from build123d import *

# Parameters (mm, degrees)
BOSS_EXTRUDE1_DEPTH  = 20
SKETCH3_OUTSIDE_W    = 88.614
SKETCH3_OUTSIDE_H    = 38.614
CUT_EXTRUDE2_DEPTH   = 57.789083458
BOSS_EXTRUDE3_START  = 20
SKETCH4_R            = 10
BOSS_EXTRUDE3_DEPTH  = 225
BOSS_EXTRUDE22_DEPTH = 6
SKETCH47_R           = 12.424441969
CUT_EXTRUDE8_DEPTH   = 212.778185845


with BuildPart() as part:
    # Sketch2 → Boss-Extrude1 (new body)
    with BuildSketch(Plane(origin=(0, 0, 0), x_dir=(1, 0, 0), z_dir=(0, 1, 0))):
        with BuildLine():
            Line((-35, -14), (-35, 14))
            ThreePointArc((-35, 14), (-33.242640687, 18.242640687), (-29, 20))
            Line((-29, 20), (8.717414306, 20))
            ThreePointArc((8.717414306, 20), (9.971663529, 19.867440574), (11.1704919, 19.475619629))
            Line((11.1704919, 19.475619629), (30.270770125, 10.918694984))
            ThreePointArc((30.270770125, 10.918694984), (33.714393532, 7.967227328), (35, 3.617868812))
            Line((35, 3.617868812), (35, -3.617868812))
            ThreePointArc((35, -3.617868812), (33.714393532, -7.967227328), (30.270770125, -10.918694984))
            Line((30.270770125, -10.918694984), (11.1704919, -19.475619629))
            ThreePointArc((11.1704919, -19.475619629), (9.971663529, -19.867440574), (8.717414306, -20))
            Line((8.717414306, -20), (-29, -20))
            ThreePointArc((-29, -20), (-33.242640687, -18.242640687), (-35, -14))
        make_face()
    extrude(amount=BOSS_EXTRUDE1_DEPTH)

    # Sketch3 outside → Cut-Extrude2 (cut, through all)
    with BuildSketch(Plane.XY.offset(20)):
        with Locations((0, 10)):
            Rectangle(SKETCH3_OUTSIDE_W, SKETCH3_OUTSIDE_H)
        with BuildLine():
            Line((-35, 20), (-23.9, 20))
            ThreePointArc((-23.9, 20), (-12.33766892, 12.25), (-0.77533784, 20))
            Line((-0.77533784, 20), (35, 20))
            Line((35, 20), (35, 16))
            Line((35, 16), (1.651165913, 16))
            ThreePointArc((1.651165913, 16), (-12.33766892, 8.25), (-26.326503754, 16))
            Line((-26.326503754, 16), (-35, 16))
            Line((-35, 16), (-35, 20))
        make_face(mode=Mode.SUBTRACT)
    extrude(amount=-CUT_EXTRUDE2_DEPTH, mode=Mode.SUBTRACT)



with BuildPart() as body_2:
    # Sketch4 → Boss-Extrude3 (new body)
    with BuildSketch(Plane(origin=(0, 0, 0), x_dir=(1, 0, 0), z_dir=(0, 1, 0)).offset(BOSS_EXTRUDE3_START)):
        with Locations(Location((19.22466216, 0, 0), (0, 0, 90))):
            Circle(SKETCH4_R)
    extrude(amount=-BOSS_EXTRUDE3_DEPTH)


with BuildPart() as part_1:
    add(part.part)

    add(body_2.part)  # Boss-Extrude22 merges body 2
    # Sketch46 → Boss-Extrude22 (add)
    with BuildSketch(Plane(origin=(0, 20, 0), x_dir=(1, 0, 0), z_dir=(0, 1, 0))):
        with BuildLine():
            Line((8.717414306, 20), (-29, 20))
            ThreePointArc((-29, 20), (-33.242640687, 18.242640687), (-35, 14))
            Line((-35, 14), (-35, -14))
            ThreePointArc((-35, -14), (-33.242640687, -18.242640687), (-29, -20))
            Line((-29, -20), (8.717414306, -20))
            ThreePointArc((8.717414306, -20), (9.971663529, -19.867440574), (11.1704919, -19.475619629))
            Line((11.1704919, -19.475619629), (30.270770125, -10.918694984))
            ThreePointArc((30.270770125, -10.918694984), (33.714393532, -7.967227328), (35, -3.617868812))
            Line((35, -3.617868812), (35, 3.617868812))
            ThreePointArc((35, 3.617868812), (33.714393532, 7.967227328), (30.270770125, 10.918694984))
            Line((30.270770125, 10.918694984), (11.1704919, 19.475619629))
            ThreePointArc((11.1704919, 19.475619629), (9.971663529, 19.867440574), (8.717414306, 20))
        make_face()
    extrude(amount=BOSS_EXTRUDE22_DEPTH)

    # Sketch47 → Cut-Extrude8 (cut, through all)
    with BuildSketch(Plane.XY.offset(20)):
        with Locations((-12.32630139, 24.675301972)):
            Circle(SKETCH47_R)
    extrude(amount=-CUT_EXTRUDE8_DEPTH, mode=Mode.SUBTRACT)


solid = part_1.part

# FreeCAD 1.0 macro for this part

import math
import FreeCAD as App
import Part
import Sketcher

V = App.Vector


def add_polygon(sketch, points):
    """Adds a closed chain of lines whose ends are joined by coincident constraints."""
    first, n = sketch.GeometryCount, len(points)
    for a, b in zip(points, points[1:] + points[:1]):
        sketch.addGeometry(Part.LineSegment(App.Vector(*a, 0), App.Vector(*b, 0)), False)
    for i in range(n):
        sketch.addConstraint(Sketcher.Constraint("Coincident", first + i, 2, first + (i + 1) % n, 1))

doc = App.newDocument("Part")
body = doc.addObject("PartDesign::Body", "Body")

# Sketch on XZ plane
sketch1 = body.newObject("Sketcher::SketchObject", "Sketch")
sketch1.AttachmentSupport = (doc.getObject("XZ_Plane"), [""])
sketch1.MapMode = "FlatFace"
sketch1.addGeometry([
    Part.LineSegment(V(-35, -14, 0), V(-35, 14, 0)),  # 0
    Part.ArcOfCircle(Part.Circle(V(-29, 14, 0), V(0, 0, 1), 6), math.radians(90), math.radians(180)),  # 1
    Part.LineSegment(V(-29, 20, 0), V(8.717414, 20, 0)),  # 2
    Part.ArcOfCircle(Part.Circle(V(8.717414, 14, 0), V(0, 0, 1), 6), math.radians(65.86762), math.radians(90)),  # 3
    Part.LineSegment(V(11.170492, 19.47562, 0), V(30.27077, 10.918695, 0)),  # 4
    Part.ArcOfCircle(Part.Circle(V(27, 3.617869, 0), V(0, 0, 1), 8), math.radians(0), math.radians(65.86762)),  # 5
    Part.LineSegment(V(35, 3.617869, 0), V(35, -3.617869, 0)),  # 6
    Part.ArcOfCircle(Part.Circle(V(27, -3.617869, 0), V(0, 0, 1), 8), math.radians(-65.86762), math.radians(0)),  # 7
    Part.LineSegment(V(30.27077, -10.918695, 0), V(11.170492, -19.47562, 0)),  # 8
    Part.ArcOfCircle(Part.Circle(V(8.717414, -14, 0), V(0, 0, 1), 6), math.radians(-90), math.radians(-65.86762)),  # 9
    Part.LineSegment(V(8.717414, -20, 0), V(-29, -20, 0)),  # 10
    Part.ArcOfCircle(Part.Circle(V(-29, -14, 0), V(0, 0, 1), 6), math.radians(180), math.radians(270)),  # 11
], False)
sketch1.addConstraint([
    Sketcher.Constraint("Tangent", 0, 2, 1, 2),
    Sketcher.Constraint("Tangent", 1, 1, 2, 1),
    Sketcher.Constraint("Tangent", 2, 2, 3, 2),
    Sketcher.Constraint("Tangent", 3, 1, 4, 1),
    Sketcher.Constraint("Tangent", 4, 2, 5, 2),
    Sketcher.Constraint("Tangent", 5, 1, 6, 1),
    Sketcher.Constraint("Tangent", 6, 2, 7, 2),
    Sketcher.Constraint("Tangent", 7, 1, 8, 1),
    Sketcher.Constraint("Tangent", 8, 2, 9, 2),
    Sketcher.Constraint("Tangent", 9, 1, 10, 1),
    Sketcher.Constraint("Tangent", 10, 2, 11, 2),
    Sketcher.Constraint("Tangent", 11, 1, 0, 1),
    Sketcher.Constraint("Vertical", 0),
    Sketcher.Constraint("Horizontal", 2),
    Sketcher.Constraint("Vertical", 6),
    Sketcher.Constraint("Horizontal", 10),
    Sketcher.Constraint("Equal", 1, 3),
    Sketcher.Constraint("Equal", 5, 7),
    Sketcher.Constraint("Equal", 3, 9),
    Sketcher.Constraint("Equal", 9, 11),
    Sketcher.Constraint("Symmetric", 3, 3, 9, 3, -1),
    Sketcher.Constraint("Vertical", 4, 2, 7, 1),
    Sketcher.Constraint("Radius", 1, 6.0),
    Sketcher.Constraint("Radius", 5, 8.0),
    Sketcher.Constraint("DistanceY", 0, 1, 0, 2, 28.0),
    Sketcher.Constraint("DistanceX", 1, 3, -1, 1, 29.0),
    Sketcher.Constraint("DistanceX", -1, 1, 5, 3, 27.0),
    Sketcher.Constraint("DistanceX", 2, 1, 2, 2, 37.717414),
    Sketcher.Constraint("DistanceY", 6, 2, 6, 1, 7.235738),
])
pad1 = body.newObject("PartDesign::Pad", "Pad")
pad1.Profile = sketch1
pad1.Length = 20
pad1.Reversed = True

# Sketch on XY plane
sketch2 = body.newObject("Sketcher::SketchObject", "Sketch001")
sketch2.AttachmentSupport = (doc.getObject("XY_Plane"), [""])
sketch2.MapMode = "FlatFace"
sketch2.AttachmentOffset = App.Placement(V(0, 0, 20), App.Rotation())
add_polygon(sketch2, [(-44.307, 29.307), (-44.307, -9.307), (44.307, -9.307), (44.307, 29.307)])  # lines 0-3
sketch2.addGeometry(Part.LineSegment(V(-35, 16, 0), V(-35, 20, 0)), False)  # 4
sketch2.addGeometry(Part.LineSegment(V(-35, 20, 0), V(-23.9, 20, 0)), False)  # 5
sketch2.addGeometry(Part.ArcOfCircle(Part.Circle(V(-12.337669, 24.75, 0), V(0, 0, 1), 12.5), math.radians(-157.666317), math.radians(-22.333683)), False)  # 6
sketch2.addGeometry(Part.LineSegment(V(-0.775338, 20, 0), V(35, 20, 0)), False)  # 7
sketch2.addGeometry(Part.LineSegment(V(35, 20, 0), V(35, 16, 0)), False)  # 8
sketch2.addGeometry(Part.LineSegment(V(35, 16, 0), V(1.651166, 16, 0)), False)  # 9
sketch2.addGeometry(Part.ArcOfCircle(Part.Circle(V(-12.337669, 24.75, 0), V(0, 0, 1), 16.5), math.radians(-147.974068), math.radians(-32.025932)), False)  # 10
sketch2.addGeometry(Part.LineSegment(V(-26.326504, 16, 0), V(-35, 16, 0)), False)  # 11
sketch2.addConstraint([
    Sketcher.Constraint("Coincident", 4, 2, 5, 1),
    Sketcher.Constraint("Coincident", 5, 2, 6, 1),
    Sketcher.Constraint("Coincident", 6, 2, 7, 1),
    Sketcher.Constraint("Coincident", 7, 2, 8, 1),
    Sketcher.Constraint("Coincident", 8, 2, 9, 1),
    Sketcher.Constraint("Coincident", 9, 2, 10, 2),
    Sketcher.Constraint("Coincident", 10, 1, 11, 1),
    Sketcher.Constraint("Coincident", 11, 2, 4, 1),
    Sketcher.Constraint("Vertical", 0),
    Sketcher.Constraint("Horizontal", 1),
    Sketcher.Constraint("Vertical", 2),
    Sketcher.Constraint("Horizontal", 3),
    Sketcher.Constraint("Vertical", 4),
    Sketcher.Constraint("Horizontal", 5),
    Sketcher.Constraint("Horizontal", 7),
    Sketcher.Constraint("Vertical", 8),
    Sketcher.Constraint("Horizontal", 9),
    Sketcher.Constraint("Horizontal", 11),
    Sketcher.Constraint("Coincident", 10, 3, 6, 3),
    Sketcher.Constraint("Symmetric", 4, 2, 7, 2, -2),
    Sketcher.Constraint("Horizontal", 9, 2, 10, 1),
    Sketcher.Constraint("Radius", 6, 12.5),
    Sketcher.Constraint("Radius", 10, 16.5),
    Sketcher.Constraint("DistanceY", 4, 1, 4, 2, 4.0),
    Sketcher.Constraint("DistanceX", 5, 1, 5, 2, 11.1),
    Sketcher.Constraint("DistanceX", 4, 2, -1, 1, 35.0),
    Sketcher.Constraint("DistanceY", -1, 1, 4, 2, 20.0),
    Sketcher.Constraint("DistanceX", 1, 1, 1, 2, 88.614),
    Sketcher.Constraint("DistanceY", 0, 2, 0, 1, 38.614),
    Sketcher.Constraint("DistanceY", -1, 1, 6, 3, 24.75),
    Sketcher.Constraint("DistanceX", 0, 2, -1, 1, 44.307),
    Sketcher.Constraint("DistanceY", 0, 2, -1, 1, 9.307),
])
pocket1 = body.newObject("PartDesign::Pocket", "Pocket")
pocket1.Profile = sketch2
pocket1.Type = "ThroughAll"
body2 = doc.addObject("PartDesign::Body", "Body001")

# Sketch on XZ plane
sketch3 = body2.newObject("Sketcher::SketchObject", "Sketch002")
sketch3.AttachmentSupport = (doc.getObject("XZ_Plane001"), [""])
sketch3.MapMode = "FlatFace"
sketch3.AttachmentOffset = App.Placement(V(0, 0, -20), App.Rotation())
sketch3.addGeometry(Part.Circle(V(19.224662, 0, 0), V(0, 0, 1), 10), False)
sketch3.addConstraint([
    Sketcher.Constraint("PointOnObject", 0, 3, -1),
    Sketcher.Constraint("Diameter", 0, 20.0),
    Sketcher.Constraint("DistanceX", -1, 1, 0, 3, 19.224662),
])
pad2 = body2.newObject("PartDesign::Pad", "Pad001")
pad2.Profile = sketch3
pad2.Length = 225
doc.recompute()

boolean = body.newObject("PartDesign::Boolean", "Boolean")
boolean.Type = "Fuse"
boolean.addObjects([body2])

# Sketch on XZ plane
sketch4 = body.newObject("Sketcher::SketchObject", "Sketch003")
sketch4.AttachmentSupport = (doc.getObject("XZ_Plane"), [""])
sketch4.MapMode = "FlatFace"
sketch4.AttachmentOffset = App.Placement(V(0, 0, -20), App.Rotation())
sketch4.addGeometry([
    Part.LineSegment(V(8.717414, -20, 0), V(-29, -20, 0)),  # 0
    Part.ArcOfCircle(Part.Circle(V(-29, -14, 0), V(0, 0, 1), 6), math.radians(180), math.radians(270)),  # 1
    Part.LineSegment(V(-35, -14, 0), V(-35, 14, 0)),  # 2
    Part.ArcOfCircle(Part.Circle(V(-29, 14, 0), V(0, 0, 1), 6), math.radians(90), math.radians(180)),  # 3
    Part.LineSegment(V(-29, 20, 0), V(8.717414, 20, 0)),  # 4
    Part.ArcOfCircle(Part.Circle(V(8.717414, 14, 0), V(0, 0, 1), 6), math.radians(65.86762), math.radians(90)),  # 5
    Part.LineSegment(V(11.170492, 19.47562, 0), V(30.27077, 10.918695, 0)),  # 6
    Part.ArcOfCircle(Part.Circle(V(27, 3.617869, 0), V(0, 0, 1), 8), math.radians(0), math.radians(65.86762)),  # 7
    Part.LineSegment(V(35, 3.617869, 0), V(35, -3.617869, 0)),  # 8
    Part.ArcOfCircle(Part.Circle(V(27, -3.617869, 0), V(0, 0, 1), 8), math.radians(-65.86762), math.radians(0)),  # 9
    Part.LineSegment(V(30.27077, -10.918695, 0), V(11.170492, -19.47562, 0)),  # 10
    Part.ArcOfCircle(Part.Circle(V(8.717414, -14, 0), V(0, 0, 1), 6), math.radians(-90), math.radians(-65.86762)),  # 11
], False)
sketch4.addConstraint([
    Sketcher.Constraint("Tangent", 0, 2, 1, 2),
    Sketcher.Constraint("Tangent", 1, 1, 2, 1),
    Sketcher.Constraint("Tangent", 2, 2, 3, 2),
    Sketcher.Constraint("Tangent", 3, 1, 4, 1),
    Sketcher.Constraint("Tangent", 4, 2, 5, 2),
    Sketcher.Constraint("Tangent", 5, 1, 6, 1),
    Sketcher.Constraint("Tangent", 6, 2, 7, 2),
    Sketcher.Constraint("Tangent", 7, 1, 8, 1),
    Sketcher.Constraint("Tangent", 8, 2, 9, 2),
    Sketcher.Constraint("Tangent", 9, 1, 10, 1),
    Sketcher.Constraint("Tangent", 10, 2, 11, 2),
    Sketcher.Constraint("Tangent", 11, 1, 0, 1),
    Sketcher.Constraint("Horizontal", 0),
    Sketcher.Constraint("Vertical", 2),
    Sketcher.Constraint("Horizontal", 4),
    Sketcher.Constraint("Vertical", 8),
    Sketcher.Constraint("Equal", 1, 3),
    Sketcher.Constraint("Equal", 3, 5),
    Sketcher.Constraint("Equal", 7, 9),
    Sketcher.Constraint("Equal", 5, 11),
    Sketcher.Constraint("Symmetric", 5, 3, 11, 3, -1),
    Sketcher.Constraint("Vertical", 6, 2, 9, 1),
    Sketcher.Constraint("Radius", 1, 6.0),
    Sketcher.Constraint("Radius", 7, 8.0),
    Sketcher.Constraint("DistanceY", 2, 1, 2, 2, 28.0),
    Sketcher.Constraint("DistanceX", 1, 3, -1, 1, 29.0),
    Sketcher.Constraint("DistanceX", -1, 1, 7, 3, 27.0),
    Sketcher.Constraint("DistanceX", 0, 2, 0, 1, 37.717414),
    Sketcher.Constraint("DistanceY", 8, 2, 8, 1, 7.235738),
])
pad3 = body.newObject("PartDesign::Pad", "Pad002")
pad3.Profile = sketch4
pad3.Length = 6
pad3.Reversed = True

# Sketch on XY plane
sketch5 = body.newObject("Sketcher::SketchObject", "Sketch004")
sketch5.AttachmentSupport = (doc.getObject("XY_Plane"), [""])
sketch5.MapMode = "FlatFace"
sketch5.AttachmentOffset = App.Placement(V(0, 0, 20), App.Rotation())
sketch5.addGeometry(Part.Circle(V(-12.326301, 24.675302, 0), V(0, 0, 1), 12.424442), False)
sketch5.addConstraint([
    Sketcher.Constraint("Diameter", 0, 24.848884),
    Sketcher.Constraint("DistanceX", 0, 3, -1, 1, 12.326301),
    Sketcher.Constraint("DistanceY", -1, 1, 0, 3, 24.675302),
])
pocket2 = body.newObject("PartDesign::Pocket", "Pocket001")
pocket2.Profile = sketch5
pocket2.Type = "ThroughAll"

doc.recompute()
